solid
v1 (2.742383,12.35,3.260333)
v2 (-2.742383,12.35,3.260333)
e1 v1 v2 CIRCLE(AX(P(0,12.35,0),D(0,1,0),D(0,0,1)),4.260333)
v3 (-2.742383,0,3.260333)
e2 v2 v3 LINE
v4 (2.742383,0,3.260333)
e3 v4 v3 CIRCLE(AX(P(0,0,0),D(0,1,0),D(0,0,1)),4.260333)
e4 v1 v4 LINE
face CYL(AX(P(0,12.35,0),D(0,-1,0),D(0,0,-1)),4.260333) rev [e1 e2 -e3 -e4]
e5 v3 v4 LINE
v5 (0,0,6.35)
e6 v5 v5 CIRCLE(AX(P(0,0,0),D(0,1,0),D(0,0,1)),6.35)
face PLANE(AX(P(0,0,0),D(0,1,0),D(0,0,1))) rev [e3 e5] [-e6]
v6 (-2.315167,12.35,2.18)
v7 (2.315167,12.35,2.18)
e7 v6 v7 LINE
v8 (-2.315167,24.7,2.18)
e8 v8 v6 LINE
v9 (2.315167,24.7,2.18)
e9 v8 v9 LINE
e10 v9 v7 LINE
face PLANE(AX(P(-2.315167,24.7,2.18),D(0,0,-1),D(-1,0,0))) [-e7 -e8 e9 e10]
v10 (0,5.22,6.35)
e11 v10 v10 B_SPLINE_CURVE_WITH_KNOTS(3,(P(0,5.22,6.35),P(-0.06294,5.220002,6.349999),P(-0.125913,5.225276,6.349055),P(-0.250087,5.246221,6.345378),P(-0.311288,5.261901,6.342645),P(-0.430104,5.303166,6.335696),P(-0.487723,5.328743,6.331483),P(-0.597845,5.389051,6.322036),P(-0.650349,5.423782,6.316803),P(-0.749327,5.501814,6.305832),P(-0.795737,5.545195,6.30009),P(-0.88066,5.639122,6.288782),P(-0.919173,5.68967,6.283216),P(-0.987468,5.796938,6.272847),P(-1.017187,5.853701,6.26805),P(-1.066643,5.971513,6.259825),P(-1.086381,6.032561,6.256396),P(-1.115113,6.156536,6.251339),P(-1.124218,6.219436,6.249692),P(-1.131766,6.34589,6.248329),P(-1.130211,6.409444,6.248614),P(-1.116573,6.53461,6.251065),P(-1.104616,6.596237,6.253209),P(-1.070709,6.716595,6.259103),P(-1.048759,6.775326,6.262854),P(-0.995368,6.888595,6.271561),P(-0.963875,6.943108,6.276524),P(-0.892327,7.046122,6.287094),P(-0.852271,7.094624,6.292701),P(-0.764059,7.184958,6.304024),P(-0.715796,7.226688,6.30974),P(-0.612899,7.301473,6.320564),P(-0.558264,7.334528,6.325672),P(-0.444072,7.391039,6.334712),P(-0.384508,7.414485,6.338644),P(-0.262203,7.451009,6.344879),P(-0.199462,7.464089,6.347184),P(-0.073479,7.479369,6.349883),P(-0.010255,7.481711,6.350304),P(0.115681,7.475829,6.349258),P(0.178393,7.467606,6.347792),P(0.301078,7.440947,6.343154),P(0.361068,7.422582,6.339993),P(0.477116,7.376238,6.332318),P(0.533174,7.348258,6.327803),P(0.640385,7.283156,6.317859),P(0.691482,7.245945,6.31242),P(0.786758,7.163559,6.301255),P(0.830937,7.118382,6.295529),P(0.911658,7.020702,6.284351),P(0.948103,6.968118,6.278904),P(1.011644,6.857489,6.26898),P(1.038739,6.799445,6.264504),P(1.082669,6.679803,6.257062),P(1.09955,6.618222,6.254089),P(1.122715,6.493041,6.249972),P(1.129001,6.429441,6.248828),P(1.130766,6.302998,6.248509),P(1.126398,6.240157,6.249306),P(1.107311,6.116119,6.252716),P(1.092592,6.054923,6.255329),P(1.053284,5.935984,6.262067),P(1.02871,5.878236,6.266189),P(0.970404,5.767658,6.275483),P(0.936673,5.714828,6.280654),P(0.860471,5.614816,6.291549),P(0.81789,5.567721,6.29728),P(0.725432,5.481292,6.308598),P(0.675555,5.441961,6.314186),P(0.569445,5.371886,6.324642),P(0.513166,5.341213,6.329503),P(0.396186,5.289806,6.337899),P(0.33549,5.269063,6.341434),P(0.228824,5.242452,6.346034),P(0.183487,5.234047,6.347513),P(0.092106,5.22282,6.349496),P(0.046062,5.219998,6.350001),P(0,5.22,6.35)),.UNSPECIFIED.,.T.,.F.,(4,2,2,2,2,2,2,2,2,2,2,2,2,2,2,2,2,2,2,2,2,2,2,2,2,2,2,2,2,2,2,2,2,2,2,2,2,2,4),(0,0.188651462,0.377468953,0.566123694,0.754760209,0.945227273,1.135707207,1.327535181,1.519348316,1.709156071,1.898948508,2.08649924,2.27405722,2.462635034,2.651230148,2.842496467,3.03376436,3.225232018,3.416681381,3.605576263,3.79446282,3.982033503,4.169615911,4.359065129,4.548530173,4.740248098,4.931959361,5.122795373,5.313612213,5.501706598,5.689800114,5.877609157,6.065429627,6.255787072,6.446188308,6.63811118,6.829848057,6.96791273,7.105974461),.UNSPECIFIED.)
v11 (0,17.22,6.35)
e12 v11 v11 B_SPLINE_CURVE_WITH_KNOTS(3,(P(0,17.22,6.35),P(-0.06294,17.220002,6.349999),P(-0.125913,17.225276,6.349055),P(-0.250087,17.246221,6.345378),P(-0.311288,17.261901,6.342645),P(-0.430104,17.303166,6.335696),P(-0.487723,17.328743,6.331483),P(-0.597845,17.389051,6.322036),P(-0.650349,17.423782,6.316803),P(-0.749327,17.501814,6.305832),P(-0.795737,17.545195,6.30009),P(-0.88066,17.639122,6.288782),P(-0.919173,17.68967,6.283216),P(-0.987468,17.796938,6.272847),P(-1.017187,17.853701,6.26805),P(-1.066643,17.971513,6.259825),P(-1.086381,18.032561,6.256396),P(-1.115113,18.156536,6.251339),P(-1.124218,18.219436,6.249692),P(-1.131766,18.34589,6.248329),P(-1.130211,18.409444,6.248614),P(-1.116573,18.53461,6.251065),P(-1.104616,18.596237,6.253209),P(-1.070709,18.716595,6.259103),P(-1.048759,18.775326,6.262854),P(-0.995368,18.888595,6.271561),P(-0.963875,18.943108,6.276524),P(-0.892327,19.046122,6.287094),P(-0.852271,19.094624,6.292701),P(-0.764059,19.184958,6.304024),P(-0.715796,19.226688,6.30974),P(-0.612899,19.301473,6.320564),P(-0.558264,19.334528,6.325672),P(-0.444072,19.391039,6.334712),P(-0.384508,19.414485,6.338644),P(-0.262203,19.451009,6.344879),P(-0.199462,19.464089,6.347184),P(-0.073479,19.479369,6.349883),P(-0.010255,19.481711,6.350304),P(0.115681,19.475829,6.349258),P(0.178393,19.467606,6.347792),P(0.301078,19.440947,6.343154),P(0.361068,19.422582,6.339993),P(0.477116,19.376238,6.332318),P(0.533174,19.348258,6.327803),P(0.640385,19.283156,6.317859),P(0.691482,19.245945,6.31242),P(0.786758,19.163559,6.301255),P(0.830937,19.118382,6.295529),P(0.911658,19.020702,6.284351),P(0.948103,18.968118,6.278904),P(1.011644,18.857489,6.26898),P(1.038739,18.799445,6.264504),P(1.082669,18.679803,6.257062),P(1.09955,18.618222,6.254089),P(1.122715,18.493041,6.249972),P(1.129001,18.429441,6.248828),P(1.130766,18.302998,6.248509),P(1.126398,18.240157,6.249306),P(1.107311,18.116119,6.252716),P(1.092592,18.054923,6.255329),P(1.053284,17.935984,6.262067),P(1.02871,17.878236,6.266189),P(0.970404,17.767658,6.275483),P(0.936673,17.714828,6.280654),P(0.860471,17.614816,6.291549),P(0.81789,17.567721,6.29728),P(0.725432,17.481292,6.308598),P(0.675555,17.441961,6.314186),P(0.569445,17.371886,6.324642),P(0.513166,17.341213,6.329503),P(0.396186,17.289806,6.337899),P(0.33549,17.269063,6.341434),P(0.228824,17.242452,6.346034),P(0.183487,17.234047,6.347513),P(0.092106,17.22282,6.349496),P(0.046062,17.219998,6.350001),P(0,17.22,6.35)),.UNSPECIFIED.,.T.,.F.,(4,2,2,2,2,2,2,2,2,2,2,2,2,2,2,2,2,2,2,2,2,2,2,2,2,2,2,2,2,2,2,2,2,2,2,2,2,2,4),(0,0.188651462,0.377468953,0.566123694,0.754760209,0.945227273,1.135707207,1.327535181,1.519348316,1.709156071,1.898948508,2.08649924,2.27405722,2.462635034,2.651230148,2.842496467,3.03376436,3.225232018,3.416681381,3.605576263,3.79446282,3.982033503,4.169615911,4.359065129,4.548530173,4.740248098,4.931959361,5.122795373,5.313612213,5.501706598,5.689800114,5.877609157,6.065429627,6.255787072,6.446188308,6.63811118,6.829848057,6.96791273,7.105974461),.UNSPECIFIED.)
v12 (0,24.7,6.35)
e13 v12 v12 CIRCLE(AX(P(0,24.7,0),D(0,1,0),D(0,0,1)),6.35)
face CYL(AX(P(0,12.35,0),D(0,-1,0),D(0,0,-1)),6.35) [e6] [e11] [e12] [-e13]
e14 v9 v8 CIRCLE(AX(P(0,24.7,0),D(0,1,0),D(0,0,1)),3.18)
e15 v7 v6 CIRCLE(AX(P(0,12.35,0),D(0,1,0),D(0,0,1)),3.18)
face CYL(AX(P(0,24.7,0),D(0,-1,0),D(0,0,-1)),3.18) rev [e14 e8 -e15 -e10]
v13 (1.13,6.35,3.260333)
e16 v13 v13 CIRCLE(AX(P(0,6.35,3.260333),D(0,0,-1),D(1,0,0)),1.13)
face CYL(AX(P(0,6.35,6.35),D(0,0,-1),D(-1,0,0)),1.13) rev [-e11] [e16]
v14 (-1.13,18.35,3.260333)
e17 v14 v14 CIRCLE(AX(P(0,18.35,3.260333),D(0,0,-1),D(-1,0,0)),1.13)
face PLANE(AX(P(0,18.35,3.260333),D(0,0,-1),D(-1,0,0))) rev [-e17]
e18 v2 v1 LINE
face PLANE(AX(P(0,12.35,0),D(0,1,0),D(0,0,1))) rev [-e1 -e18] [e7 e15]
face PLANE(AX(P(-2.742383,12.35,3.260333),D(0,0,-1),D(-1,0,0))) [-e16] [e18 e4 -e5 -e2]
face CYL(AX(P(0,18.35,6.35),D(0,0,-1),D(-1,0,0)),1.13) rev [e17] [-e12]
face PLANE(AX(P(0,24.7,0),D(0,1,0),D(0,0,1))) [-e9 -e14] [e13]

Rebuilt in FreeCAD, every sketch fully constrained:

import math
import FreeCAD as App
import Part
import Sketcher
from FreeCAD import Vector
Q = App.Units.Quantity

doc = App.newDocument("Part")
body = doc.addObject("PartDesign::Body", "Body")

sketch1 = body.newObject("Sketcher::SketchObject", "Sketch")
sketch1.AttachmentSupport = (doc.getObject("XZ_Plane"), [""])
sketch1.MapMode = "FlatFace"
sketch1.addGeometry([
    Part.Circle(Vector(0, 0, 0), Vector(0, 0, 1), 6.3),
    Part.LineSegment(Vector(2.7, 3.3, 0), Vector(-2.7, 3.3, 0)),
    Part.ArcOfCircle(Part.Circle(Vector(0, 0, 0), Vector(0, 0, 1), 4.3), math.radians(130), math.radians(410)),
], False)
sketch1.addConstraint([
    Sketcher.Constraint("Coincident", 1, 1, 2, 2),
    Sketcher.Constraint("Coincident", 2, 1, 1, 2),
    Sketcher.Constraint("Horizontal", 1),
    Sketcher.Constraint("Coincident", 0, 3, -1, 1),
    Sketcher.Constraint("Coincident", 2, 3, -1, 1),
    Sketcher.Constraint("Diameter", 0, Q("0.5 in")),
    Sketcher.Constraint("Radius", 2, Q("4.260333 mm")),
    Sketcher.Constraint("DistanceX", 1, 2, 1, 1, Q("5.484766 mm")),
])
pad1 = body.newObject("PartDesign::Pad", "Pad")
pad1.Profile = sketch1
pad1.Length = 12.35
pad1.Reversed = True

sketch2 = body.newObject("Sketcher::SketchObject", "Sketch001")
sketch2.AttachmentSupport = (doc.getObject("XZ_Plane"), [""])
sketch2.MapMode = "FlatFace"
sketch2.AttachmentOffset = App.Placement(Vector(0, 0, -12.35), App.Rotation())
sketch2.addGeometry([
    Part.Circle(Vector(0, 0, 0), Vector(0, 0, 1), 6.3),
    Part.LineSegment(Vector(2.3, 2.2, 0), Vector(-2.3, 2.2, 0)),
    Part.ArcOfCircle(Part.Circle(Vector(0, 0, 0), Vector(0, 0, 1), 3.2), math.radians(137), math.radians(403)),
], False)
sketch2.addConstraint([
    Sketcher.Constraint("Coincident", 1, 1, 2, 2),
    Sketcher.Constraint("Coincident", 2, 1, 1, 2),
    Sketcher.Constraint("Horizontal", 1),
    Sketcher.Constraint("Coincident", 0, 3, -1, 1),
    Sketcher.Constraint("Coincident", 2, 3, -1, 1),
    Sketcher.Constraint("Diameter", 0, Q("0.5 in")),
    Sketcher.Constraint("Radius", 2, Q("3.18 mm")),
    Sketcher.Constraint("DistanceY", -1, 1, 1, 1, Q("2.18 mm")),
])
pad2 = body.newObject("PartDesign::Pad", "Pad001")
pad2.Profile = sketch2
pad2.Length = 12.35
pad2.Reversed = True

sketch3 = body.newObject("Sketcher::SketchObject", "Sketch002")
sketch3.AttachmentSupport = (doc.getObject("XY_Plane"), [""])
sketch3.MapMode = "FlatFace"
sketch3.AttachmentOffset = App.Placement(Vector(0, 0, 3.260333), App.Rotation())
sketch3.addGeometry([
    Part.Circle(Vector(0, 18.4, 0), Vector(0, 0, 1), 1.1),
    Part.Circle(Vector(0, 6.3, 0), Vector(0, 0, 1), 1.1),
], False)
sketch3.addConstraint([
    Sketcher.Constraint("Equal", 0, 1),
    Sketcher.Constraint("PointOnObject", 0, 3, -2),
    Sketcher.Constraint("PointOnObject", 1, 3, -2),
    Sketcher.Constraint("Diameter", 0, Q("2.26 mm")),
    Sketcher.Constraint("DistanceY", -1, 1, 1, 3, Q("0.25 in")),
    Sketcher.Constraint("DistanceY", -1, 1, 0, 3, Q("18.35 mm")),
])
pocket1 = body.newObject("PartDesign::Pocket", "Pocket")
pocket1.Profile = sketch3
pocket1.Type = "ThroughAll"
pocket1.Reversed = True

doc.recompute()
